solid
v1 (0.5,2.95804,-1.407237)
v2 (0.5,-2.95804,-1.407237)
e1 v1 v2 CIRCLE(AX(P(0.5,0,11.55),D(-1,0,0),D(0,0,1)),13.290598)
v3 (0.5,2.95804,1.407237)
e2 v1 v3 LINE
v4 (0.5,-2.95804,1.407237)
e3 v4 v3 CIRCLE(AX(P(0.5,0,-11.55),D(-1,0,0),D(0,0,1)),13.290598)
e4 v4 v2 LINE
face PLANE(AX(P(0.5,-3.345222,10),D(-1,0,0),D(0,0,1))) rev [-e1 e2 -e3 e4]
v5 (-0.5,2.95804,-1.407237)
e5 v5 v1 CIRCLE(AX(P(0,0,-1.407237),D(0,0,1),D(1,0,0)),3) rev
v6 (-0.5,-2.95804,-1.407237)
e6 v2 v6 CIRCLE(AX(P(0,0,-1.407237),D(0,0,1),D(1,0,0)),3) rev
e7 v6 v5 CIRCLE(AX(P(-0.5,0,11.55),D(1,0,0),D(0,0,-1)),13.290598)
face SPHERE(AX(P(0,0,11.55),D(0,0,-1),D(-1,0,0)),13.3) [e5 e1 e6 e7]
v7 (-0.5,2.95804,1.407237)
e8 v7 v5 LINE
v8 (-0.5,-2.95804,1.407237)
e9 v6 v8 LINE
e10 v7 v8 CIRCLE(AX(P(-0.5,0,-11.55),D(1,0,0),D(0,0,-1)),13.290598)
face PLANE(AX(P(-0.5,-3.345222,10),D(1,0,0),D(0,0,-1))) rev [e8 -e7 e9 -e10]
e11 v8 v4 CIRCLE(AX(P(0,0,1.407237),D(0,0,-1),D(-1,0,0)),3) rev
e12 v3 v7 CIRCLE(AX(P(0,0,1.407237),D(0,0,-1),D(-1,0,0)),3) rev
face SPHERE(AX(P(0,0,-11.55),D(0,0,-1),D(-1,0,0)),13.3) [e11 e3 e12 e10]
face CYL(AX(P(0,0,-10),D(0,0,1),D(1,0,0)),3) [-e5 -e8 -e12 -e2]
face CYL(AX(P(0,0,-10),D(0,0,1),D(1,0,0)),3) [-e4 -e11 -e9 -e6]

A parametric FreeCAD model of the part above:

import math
import FreeCAD as App
import Part
import Sketcher
Q = App.Units.Quantity

doc = App.newDocument("Part")
body = doc.addObject("PartDesign::Body", "Body")

# Sketch on XY plane
sketch1 = doc.addObject("Sketcher::SketchObject", "Sketch")
body.addObject(sketch1)
sketch1.AttachmentSupport = (doc.XY_Plane, [""])
sketch1.MapMode = "FlatFace"
sketch1.addGeometry(Part.Circle(App.Vector(0, 0, 0), App.Vector(0, 0, 1), 3), False)
sketch1.addConstraint(Sketcher.Constraint("Coincident", 0, 3, -1, 1))
sketch1.addConstraint(Sketcher.Constraint("Diameter", 0, Q("6 mm")))
pad1 = doc.addObject("PartDesign::Pad", "Pad")
body.addObject(pad1)
pad1.Profile = sketch1
pad1.Type = "TwoLengths"
pad1.Length = 10
pad1.Length2 = 10

# Sketch on XZ plane
sketch2 = doc.addObject("Sketcher::SketchObject", "Sketch001")
body.addObject(sketch2)
sketch2.AttachmentSupport = (doc.XZ_Plane, [""])
sketch2.MapMode = "FlatFace"
sketch2.addGeometry(Part.LineSegment(App.Vector(-5, 1, 0), App.Vector(-8, 12, 0)), False)
sketch2.addGeometry(Part.LineSegment(App.Vector(-8, 12, 0), App.Vector(0, 13, 0)), False)
sketch2.addGeometry(Part.LineSegment(App.Vector(0, 13, 0), App.Vector(0, 2, 0)), False)
sketch2.addGeometry(Part.ArcOfCircle(Part.Circle(App.Vector(0, -12, 0), App.Vector(0, 0, 1), 13), math.radians(90), math.radians(114)), False)
sketch2.addConstraint(Sketcher.Constraint("Coincident", 0, 2, 1, 1))
sketch2.addConstraint(Sketcher.Constraint("Coincident", 1, 2, 2, 1))
sketch2.addConstraint(Sketcher.Constraint("Coincident", 2, 2, 3, 1))
sketch2.addConstraint(Sketcher.Constraint("Coincident", 3, 2, 0, 1))
sketch2.addConstraint(Sketcher.Constraint("Vertical", 2))
sketch2.addConstraint(Sketcher.Constraint("PointOnObject", 3, 3, -2))
sketch2.addConstraint(Sketcher.Constraint("PointOnObject", 1, 2, -2))
sketch2.addConstraint(Sketcher.Constraint("Radius", 3, Q("13.3 mm")))
sketch2.addConstraint(Sketcher.Constraint("DistanceY", 3, 3, -1, 1, Q("11.55 mm")))
sketch2.addConstraint(Sketcher.Constraint("DistanceY", 0, 2, 1, 2, Q("1.051699 mm")))
sketch2.addConstraint(Sketcher.Constraint("DistanceX", 0, 2, 3, 2, Q("2.4868 mm")))
sketch2.addConstraint(Sketcher.Constraint("Distance", 0, Q("11.28113 mm")))
sketch2.addConstraint(Sketcher.Constraint("DistanceY", 2, 2, 2, 1, Q("10.931735 mm")))
groove = doc.addObject("PartDesign::Groove", "Groove")
body.addObject(groove)
groove.Profile = sketch2
groove.ReferenceAxis = (sketch2, ["V_Axis"])
groove.Angle = 360

# Sketch on XZ plane
sketch3 = doc.addObject("Sketcher::SketchObject", "Sketch002")
body.addObject(sketch3)
sketch3.AttachmentSupport = (doc.XZ_Plane, [""])
sketch3.MapMode = "FlatFace"
sketch3.addGeometry(Part.LineSegment(App.Vector(-9, -13, 0), App.Vector(-9, 2, 0)), False)
sketch3.addGeometry(Part.ArcOfCircle(Part.Circle(App.Vector(0, 12, 0), App.Vector(0, 0, 1), 13), math.radians(-135), math.radians(-90)), False)
sketch3.addGeometry(Part.LineSegment(App.Vector(0, -2, 0), App.Vector(0, -13, 0)), False)
sketch3.addGeometry(Part.LineSegment(App.Vector(0, -13, 0), App.Vector(-9, -13, 0)), False)
sketch3.addConstraint(Sketcher.Constraint("Coincident", 0, 2, 1, 1))
sketch3.addConstraint(Sketcher.Constraint("Coincident", 1, 2, 2, 1))
sketch3.addConstraint(Sketcher.Constraint("Coincident", 2, 2, 3, 1))
sketch3.addConstraint(Sketcher.Constraint("Coincident", 3, 2, 0, 1))
sketch3.addConstraint(Sketcher.Constraint("Vertical", 0))
sketch3.addConstraint(Sketcher.Constraint("Vertical", 2))
sketch3.addConstraint(Sketcher.Constraint("Horizontal", 3))
sketch3.addConstraint(Sketcher.Constraint("PointOnObject", 1, 3, -2))
sketch3.addConstraint(Sketcher.Constraint("PointOnObject", 1, 2, -2))
sketch3.addConstraint(Sketcher.Constraint("Radius", 1, Q("13.3 mm")))
sketch3.addConstraint(Sketcher.Constraint("DistanceY", -1, 1, 1, 3, Q("11.55 mm")))
sketch3.addConstraint(Sketcher.Constraint("DistanceX", 3, 2, 3, 1, Q("9.335027 mm")))
sketch3.addConstraint(Sketcher.Constraint("DistanceY", 0, 1, 0, 2, Q("15.296844 mm")))
groove2 = doc.addObject("PartDesign::Groove", "Groove001")
body.addObject(groove2)
groove2.Profile = sketch3
groove2.ReferenceAxis = (sketch3, ["V_Axis"])
groove2.Angle = 360

# Sketch on XY plane
sketch4 = doc.addObject("Sketcher::SketchObject", "Sketch003")
body.addObject(sketch4)
sketch4.AttachmentSupport = (doc.XY_Plane, [""])
sketch4.MapMode = "FlatFace"
sketch4.addGeometry(Part.LineSegment(App.Vector(-4.9, 4.9, 0), App.Vector(-4.9, -4.9, 0)), False)
sketch4.addGeometry(Part.LineSegment(App.Vector(-4.9, -4.9, 0), App.Vector(4.9, -4.9, 0)), False)
sketch4.addGeometry(Part.LineSegment(App.Vector(4.9, -4.9, 0), App.Vector(4.9, 4.9, 0)), False)
sketch4.addGeometry(Part.LineSegment(App.Vector(4.9, 4.9, 0), App.Vector(-4.9, 4.9, 0)), False)
sketch4.addGeometry(Part.LineSegment(App.Vector(0.5, -3.3, 0), App.Vector(-0.5, -3.3, 0)), False)
sketch4.addGeometry(Part.LineSegment(App.Vector(-0.5, -3.3, 0), App.Vector(-0.5, 3.3, 0)), False)
sketch4.addGeometry(Part.LineSegment(App.Vector(-0.5, 3.3, 0), App.Vector(0.5, 3.3, 0)), False)
sketch4.addGeometry(Part.LineSegment(App.Vector(0.5, 3.3, 0), App.Vector(0.5, -3.3, 0)), False)
sketch4.addConstraint(Sketcher.Constraint("Coincident", 0, 2, 1, 1))
sketch4.addConstraint(Sketcher.Constraint("Coincident", 1, 2, 2, 1))
sketch4.addConstraint(Sketcher.Constraint("Coincident", 2, 2, 3, 1))
sketch4.addConstraint(Sketcher.Constraint("Coincident", 3, 2, 0, 1))
sketch4.addConstraint(Sketcher.Constraint("Coincident", 4, 2, 5, 1))
sketch4.addConstraint(Sketcher.Constraint("Coincident", 5, 2, 6, 1))
sketch4.addConstraint(Sketcher.Constraint("Coincident", 6, 2, 7, 1))
sketch4.addConstraint(Sketcher.Constraint("Coincident", 7, 2, 4, 1))
sketch4.addConstraint(Sketcher.Constraint("Vertical", 0))
sketch4.addConstraint(Sketcher.Constraint("Horizontal", 1))
sketch4.addConstraint(Sketcher.Constraint("Vertical", 2))
sketch4.addConstraint(Sketcher.Constraint("Horizontal", 3))
sketch4.addConstraint(Sketcher.Constraint("Horizontal", 4))
sketch4.addConstraint(Sketcher.Constraint("Vertical", 5))
sketch4.addConstraint(Sketcher.Constraint("Horizontal", 6))
sketch4.addConstraint(Sketcher.Constraint("Vertical", 7))
sketch4.addConstraint(Sketcher.Constraint("Symmetric", 0, 2, 2, 2, -1, 1))
sketch4.addConstraint(Sketcher.Constraint("Symmetric", 4, 2, 6, 2, -1, 1))
sketch4.addConstraint(Sketcher.Constraint("Equal", 3, 0))
sketch4.addConstraint(Sketcher.Constraint("DistanceX", 4, 2, 4, 1, Q("1 mm")))
sketch4.addConstraint(Sketcher.Constraint("DistanceX", 1, 1, 1, 2, Q("9.836 mm")))
sketch4.addConstraint(Sketcher.Constraint("DistanceY", 5, 1, 5, 2, Q("6.690444 mm")))
pocket1 = doc.addObject("PartDesign::Pocket", "Pocket")
body.addObject(pocket1)
pocket1.Profile = sketch4
pocket1.Type = "ThroughAll"
pocket1.Midplane = True

doc.recompute()
